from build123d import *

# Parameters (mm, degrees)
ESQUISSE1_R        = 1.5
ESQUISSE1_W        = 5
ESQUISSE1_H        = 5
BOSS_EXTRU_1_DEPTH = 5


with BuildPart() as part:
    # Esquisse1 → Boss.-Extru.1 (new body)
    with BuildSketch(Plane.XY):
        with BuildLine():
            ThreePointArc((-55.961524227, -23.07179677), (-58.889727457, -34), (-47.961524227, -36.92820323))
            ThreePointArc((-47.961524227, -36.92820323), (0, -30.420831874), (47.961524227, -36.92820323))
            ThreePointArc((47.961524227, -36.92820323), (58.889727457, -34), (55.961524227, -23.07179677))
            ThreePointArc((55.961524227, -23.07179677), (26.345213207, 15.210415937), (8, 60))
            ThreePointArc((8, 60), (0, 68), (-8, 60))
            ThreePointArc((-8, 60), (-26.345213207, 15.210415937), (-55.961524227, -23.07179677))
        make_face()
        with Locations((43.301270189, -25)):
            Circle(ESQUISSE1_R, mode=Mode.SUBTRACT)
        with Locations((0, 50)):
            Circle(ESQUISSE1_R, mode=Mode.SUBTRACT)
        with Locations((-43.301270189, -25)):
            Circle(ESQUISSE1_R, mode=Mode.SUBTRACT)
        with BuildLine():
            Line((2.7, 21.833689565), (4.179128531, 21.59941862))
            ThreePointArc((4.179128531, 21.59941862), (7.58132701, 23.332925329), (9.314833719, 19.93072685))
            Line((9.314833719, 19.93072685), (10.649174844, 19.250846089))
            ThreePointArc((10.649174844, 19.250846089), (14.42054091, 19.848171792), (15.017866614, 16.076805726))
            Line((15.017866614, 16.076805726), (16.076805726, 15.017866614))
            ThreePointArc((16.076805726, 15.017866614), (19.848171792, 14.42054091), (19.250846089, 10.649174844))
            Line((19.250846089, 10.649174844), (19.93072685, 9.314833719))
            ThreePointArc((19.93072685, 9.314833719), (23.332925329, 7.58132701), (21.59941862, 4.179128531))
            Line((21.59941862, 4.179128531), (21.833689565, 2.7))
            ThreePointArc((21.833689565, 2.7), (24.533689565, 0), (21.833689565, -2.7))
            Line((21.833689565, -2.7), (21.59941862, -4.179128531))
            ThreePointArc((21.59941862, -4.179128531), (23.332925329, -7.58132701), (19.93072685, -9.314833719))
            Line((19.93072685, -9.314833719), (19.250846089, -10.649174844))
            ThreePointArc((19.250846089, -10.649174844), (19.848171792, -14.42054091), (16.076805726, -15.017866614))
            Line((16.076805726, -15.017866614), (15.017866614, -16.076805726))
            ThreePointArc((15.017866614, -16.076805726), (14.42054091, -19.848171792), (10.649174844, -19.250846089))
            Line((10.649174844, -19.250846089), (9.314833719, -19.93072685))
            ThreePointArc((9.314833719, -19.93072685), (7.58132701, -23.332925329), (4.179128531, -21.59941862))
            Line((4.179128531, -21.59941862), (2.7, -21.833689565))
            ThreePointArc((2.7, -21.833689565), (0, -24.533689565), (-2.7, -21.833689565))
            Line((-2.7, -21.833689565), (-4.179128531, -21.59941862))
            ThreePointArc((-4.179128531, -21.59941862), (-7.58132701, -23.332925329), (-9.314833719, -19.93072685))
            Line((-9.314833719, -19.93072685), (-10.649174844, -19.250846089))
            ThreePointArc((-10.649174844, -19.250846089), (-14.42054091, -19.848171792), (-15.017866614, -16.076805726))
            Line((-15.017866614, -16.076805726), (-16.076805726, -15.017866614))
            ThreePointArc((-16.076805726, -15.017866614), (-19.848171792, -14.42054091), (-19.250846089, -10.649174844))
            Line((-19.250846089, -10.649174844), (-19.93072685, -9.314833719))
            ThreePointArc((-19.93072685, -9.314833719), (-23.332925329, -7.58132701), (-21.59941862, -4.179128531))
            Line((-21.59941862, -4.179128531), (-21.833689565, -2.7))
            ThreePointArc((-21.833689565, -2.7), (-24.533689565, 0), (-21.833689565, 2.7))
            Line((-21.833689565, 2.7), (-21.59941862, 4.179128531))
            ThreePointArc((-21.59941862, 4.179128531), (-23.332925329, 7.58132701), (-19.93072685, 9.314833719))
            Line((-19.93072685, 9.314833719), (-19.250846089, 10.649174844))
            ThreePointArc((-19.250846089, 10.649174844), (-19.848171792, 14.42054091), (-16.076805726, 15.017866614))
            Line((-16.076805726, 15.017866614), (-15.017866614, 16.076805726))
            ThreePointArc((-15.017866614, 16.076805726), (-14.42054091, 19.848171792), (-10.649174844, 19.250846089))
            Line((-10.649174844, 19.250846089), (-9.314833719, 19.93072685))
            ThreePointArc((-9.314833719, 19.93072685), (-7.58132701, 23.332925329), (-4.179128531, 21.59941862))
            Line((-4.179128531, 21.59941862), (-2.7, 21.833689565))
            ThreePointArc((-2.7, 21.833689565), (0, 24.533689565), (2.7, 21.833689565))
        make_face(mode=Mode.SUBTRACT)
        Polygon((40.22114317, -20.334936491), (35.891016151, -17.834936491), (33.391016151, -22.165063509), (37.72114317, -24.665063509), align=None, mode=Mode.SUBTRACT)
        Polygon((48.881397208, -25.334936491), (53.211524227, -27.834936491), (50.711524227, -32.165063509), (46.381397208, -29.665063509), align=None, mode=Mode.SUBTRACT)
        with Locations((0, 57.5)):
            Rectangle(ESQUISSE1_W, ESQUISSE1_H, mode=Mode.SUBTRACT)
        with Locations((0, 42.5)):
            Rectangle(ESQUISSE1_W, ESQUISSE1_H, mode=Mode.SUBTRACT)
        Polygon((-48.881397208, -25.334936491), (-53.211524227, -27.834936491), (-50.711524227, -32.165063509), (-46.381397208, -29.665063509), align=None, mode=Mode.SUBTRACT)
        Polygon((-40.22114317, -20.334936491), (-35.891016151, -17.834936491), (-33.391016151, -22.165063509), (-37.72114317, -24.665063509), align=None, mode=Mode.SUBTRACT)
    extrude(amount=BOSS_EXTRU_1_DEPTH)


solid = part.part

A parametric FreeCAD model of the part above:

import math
import FreeCAD as App
import Part
import Sketcher
from FreeCAD import Vector
Q = App.Units.Quantity


def add_polygon(sketch, points):
    """Adds a closed chain of lines whose ends are joined by coincident constraints."""
    first, n = sketch.GeometryCount, len(points)
    for a, b in zip(points, points[1:] + points[:1]):
        sketch.addGeometry(Part.LineSegment(App.Vector(*a, 0), App.Vector(*b, 0)), False)
    for i in range(n):
        sketch.addConstraint(Sketcher.Constraint("Coincident", first + i, 2, first + (i + 1) % n, 1))

doc = App.newDocument("Part")
body = doc.addObject("PartDesign::Body", "Body")

# Sketch on XY plane
sketch1 = body.newObject("Sketcher::SketchObject", "Sketch")
sketch1.AttachmentSupport = (doc.getObject("XY_Plane"), [""])
sketch1.MapMode = "FlatFace"
sketch1.addGeometry(Part.ArcOfCircle(Part.Circle(Vector(-52, -30, 0), Vector(0, 0, 1), 8), math.radians(120), math.radians(300)), False)  # 0
sketch1.addGeometry(Part.ArcOfCircle(Part.Circle(Vector(0, -210.4, 0), Vector(0, 0, 1), 180), math.radians(75), math.radians(105)), False)  # 1
sketch1.addGeometry(Part.ArcOfCircle(Part.Circle(Vector(52, -30, 0), Vector(0, 0, 1), 8), math.radians(-120), math.radians(60)), False)  # 2
sketch1.addGeometry(Part.ArcOfCircle(Part.Circle(Vector(182.2, 105.2, 0), Vector(0, 0, 1), 180), math.radians(-165), math.radians(-135)), False)  # 3
sketch1.addGeometry(Part.ArcOfCircle(Part.Circle(Vector(0, 60, 0), Vector(0, 0, 1), 8), math.radians(0), math.radians(180)), False)  # 4
sketch1.addGeometry(Part.ArcOfCircle(Part.Circle(Vector(-182.2, 105.2, 0), Vector(0, 0, 1), 180), math.radians(-45), math.radians(-15)), False)  # 5
add_polygon(sketch1, [(-53.2, -27.8), (-48.9, -25.3), (-46.4, -29.7), (-50.7, -32.2)])  # lines 6-9
sketch1.addGeometry(Part.Circle(Vector(-43.3, -25, 0), Vector(0, 0, 1), 1.5), False)  # 10
add_polygon(sketch1, [(-37.7, -24.7), (-40.2, -20.3), (-35.9, -17.8), (-33.4, -22.2)])  # lines 11-14
add_polygon(sketch1, [(35.9, -17.8), (40.2, -20.3), (37.7, -24.7), (33.4, -22.2)])  # lines 15-18
add_polygon(sketch1, [(46.4, -29.7), (48.9, -25.3), (53.2, -27.8), (50.7, -32.2)])  # lines 19-22
sketch1.addGeometry(Part.Circle(Vector(43.3, -25, 0), Vector(0, 0, 1), 1.5), False)  # 23
sketch1.addGeometry(Part.ArcOfCircle(Part.Circle(Vector(0, 21.8, 0), Vector(0, 0, 1), 2.7), math.radians(0), math.radians(180)), False)  # 24
sketch1.addGeometry(Part.LineSegment(Vector(2.7, 21.8, 0), Vector(4.2, 21.6, 0)), False)  # 25
sketch1.addGeometry(Part.ArcOfCircle(Part.Circle(Vector(6.7, 20.8, 0), Vector(0, 0, 1), 2.7), math.radians(-18), math.radians(162)), False)  # 26
sketch1.addGeometry(Part.LineSegment(Vector(9.3, 19.9, 0), Vector(10.6, 19.3, 0)), False)  # 27
sketch1.addGeometry(Part.ArcOfCircle(Part.Circle(Vector(12.8, 17.7, 0), Vector(0, 0, 1), 2.7), math.radians(-36), math.radians(144)), False)  # 28
sketch1.addGeometry(Part.LineSegment(Vector(15, 16.1, 0), Vector(16.1, 15, 0)), False)  # 29
sketch1.addGeometry(Part.ArcOfCircle(Part.Circle(Vector(17.7, 12.8, 0), Vector(0, 0, 1), 2.7), math.radians(-54), math.radians(126)), False)  # 30
sketch1.addGeometry(Part.LineSegment(Vector(19.3, 10.6, 0), Vector(19.9, 9.3, 0)), False)  # 31
sketch1.addGeometry(Part.ArcOfCircle(Part.Circle(Vector(20.8, 6.7, 0), Vector(0, 0, 1), 2.7), math.radians(-72), math.radians(108)), False)  # 32
sketch1.addGeometry(Part.LineSegment(Vector(21.6, 4.2, 0), Vector(21.8, 2.7, 0)), False)  # 33
sketch1.addGeometry(Part.ArcOfCircle(Part.Circle(Vector(21.8, 0, 0), Vector(0, 0, 1), 2.7), math.radians(-90), math.radians(90)), False)  # 34
sketch1.addGeometry(Part.LineSegment(Vector(21.8, -2.7, 0), Vector(21.6, -4.2, 0)), False)  # 35
sketch1.addGeometry(Part.ArcOfCircle(Part.Circle(Vector(20.8, -6.7, 0), Vector(0, 0, 1), 2.7), math.radians(-108), math.radians(72)), False)  # 36
sketch1.addGeometry(Part.LineSegment(Vector(19.9, -9.3, 0), Vector(19.3, -10.6, 0)), False)  # 37
sketch1.addGeometry(Part.ArcOfCircle(Part.Circle(Vector(17.7, -12.8, 0), Vector(0, 0, 1), 2.7), math.radians(-126), math.radians(54)), False)  # 38
sketch1.addGeometry(Part.LineSegment(Vector(16.1, -15, 0), Vector(15, -16.1, 0)), False)  # 39
sketch1.addGeometry(Part.ArcOfCircle(Part.Circle(Vector(12.8, -17.7, 0), Vector(0, 0, 1), 2.7), math.radians(-144), math.radians(36)), False)  # 40
sketch1.addGeometry(Part.LineSegment(Vector(10.6, -19.3, 0), Vector(9.3, -19.9, 0)), False)  # 41
sketch1.addGeometry(Part.ArcOfCircle(Part.Circle(Vector(6.7, -20.8, 0), Vector(0, 0, 1), 2.7), math.radians(-162), math.radians(18)), False)  # 42
sketch1.addGeometry(Part.LineSegment(Vector(4.2, -21.6, 0), Vector(2.7, -21.8, 0)), False)  # 43
sketch1.addGeometry(Part.ArcOfCircle(Part.Circle(Vector(0, -21.8, 0), Vector(0, 0, 1), 2.7), math.radians(180), math.radians(360)), False)  # 44
sketch1.addGeometry(Part.LineSegment(Vector(-2.7, -21.8, 0), Vector(-4.2, -21.6, 0)), False)  # 45
sketch1.addGeometry(Part.ArcOfCircle(Part.Circle(Vector(-6.7, -20.8, 0), Vector(0, 0, 1), 2.7), math.radians(162), math.radians(342)), False)  # 46
sketch1.addGeometry(Part.LineSegment(Vector(-9.3, -19.9, 0), Vector(-10.6, -19.3, 0)), False)  # 47
sketch1.addGeometry(Part.ArcOfCircle(Part.Circle(Vector(-12.8, -17.7, 0), Vector(0, 0, 1), 2.7), math.radians(144), math.radians(324)), False)  # 48
sketch1.addGeometry(Part.LineSegment(Vector(-15, -16.1, 0), Vector(-16.1, -15, 0)), False)  # 49
sketch1.addGeometry(Part.ArcOfCircle(Part.Circle(Vector(-17.7, -12.8, 0), Vector(0, 0, 1), 2.7), math.radians(126), math.radians(306)), False)  # 50
sketch1.addGeometry(Part.LineSegment(Vector(-19.3, -10.6, 0), Vector(-19.9, -9.3, 0)), False)  # 51
sketch1.addGeometry(Part.ArcOfCircle(Part.Circle(Vector(-20.8, -6.7, 0), Vector(0, 0, 1), 2.7), math.radians(108), math.radians(288)), False)  # 52
sketch1.addGeometry(Part.LineSegment(Vector(-21.6, -4.2, 0), Vector(-21.8, -2.7, 0)), False)  # 53
sketch1.addGeometry(Part.ArcOfCircle(Part.Circle(Vector(-21.8, 0, 0), Vector(0, 0, 1), 2.7), math.radians(90), math.radians(270)), False)  # 54
sketch1.addGeometry(Part.LineSegment(Vector(-21.8, 2.7, 0), Vector(-21.6, 4.2, 0)), False)  # 55
sketch1.addGeometry(Part.ArcOfCircle(Part.Circle(Vector(-20.8, 6.7, 0), Vector(0, 0, 1), 2.7), math.radians(72), math.radians(252)), False)  # 56
sketch1.addGeometry(Part.LineSegment(Vector(-19.9, 9.3, 0), Vector(-19.3, 10.6, 0)), False)  # 57
sketch1.addGeometry(Part.ArcOfCircle(Part.Circle(Vector(-17.7, 12.8, 0), Vector(0, 0, 1), 2.7), math.radians(54), math.radians(234)), False)  # 58
sketch1.addGeometry(Part.LineSegment(Vector(-16.1, 15, 0), Vector(-15, 16.1, 0)), False)  # 59
sketch1.addGeometry(Part.ArcOfCircle(Part.Circle(Vector(-12.8, 17.7, 0), Vector(0, 0, 1), 2.7), math.radians(36), math.radians(216)), False)  # 60
sketch1.addGeometry(Part.LineSegment(Vector(-10.6, 19.3, 0), Vector(-9.3, 19.9, 0)), False)  # 61
sketch1.addGeometry(Part.ArcOfCircle(Part.Circle(Vector(-6.7, 20.8, 0), Vector(0, 0, 1), 2.7), math.radians(18), math.radians(198)), False)  # 62
sketch1.addGeometry(Part.LineSegment(Vector(-4.2, 21.6, 0), Vector(-2.7, 21.8, 0)), False)  # 63
add_polygon(sketch1, [(2.5, 40), (-2.5, 40), (-2.5, 45), (2.5, 45)])  # lines 64-67
sketch1.addGeometry(Part.Circle(Vector(0, 50, 0), Vector(0, 0, 1), 1.5), False)  # 68
add_polygon(sketch1, [(2.5, 55), (-2.5, 55), (-2.5, 60), (2.5, 60)])  # lines 69-72
sketch1.addConstraint(Sketcher.Constraint("Coincident", 0, 2, 1, 2))
sketch1.addConstraint(Sketcher.Constraint("Coincident", 1, 1, 2, 1))
sketch1.addConstraint(Sketcher.Constraint("Coincident", 2, 2, 3, 2))
sketch1.addConstraint(Sketcher.Constraint("Coincident", 3, 1, 4, 1))
sketch1.addConstraint(Sketcher.Constraint("Coincident", 4, 2, 5, 2))
sketch1.addConstraint(Sketcher.Constraint("Coincident", 5, 1, 0, 1))
sketch1.addConstraint(Sketcher.Constraint("Coincident", 24, 1, 25, 1))
sketch1.addConstraint(Sketcher.Constraint("Coincident", 25, 2, 26, 2))
sketch1.addConstraint(Sketcher.Constraint("Coincident", 26, 1, 27, 1))
sketch1.addConstraint(Sketcher.Constraint("Coincident", 27, 2, 28, 2))
sketch1.addConstraint(Sketcher.Constraint("Coincident", 28, 1, 29, 1))
sketch1.addConstraint(Sketcher.Constraint("Coincident", 29, 2, 30, 2))
sketch1.addConstraint(Sketcher.Constraint("Coincident", 30, 1, 31, 1))
sketch1.addConstraint(Sketcher.Constraint("Coincident", 31, 2, 32, 2))
sketch1.addConstraint(Sketcher.Constraint("Coincident", 32, 1, 33, 1))
sketch1.addConstraint(Sketcher.Constraint("Coincident", 33, 2, 34, 2))
sketch1.addConstraint(Sketcher.Constraint("Coincident", 34, 1, 35, 1))
sketch1.addConstraint(Sketcher.Constraint("Coincident", 35, 2, 36, 2))
sketch1.addConstraint(Sketcher.Constraint("Coincident", 36, 1, 37, 1))
sketch1.addConstraint(Sketcher.Constraint("Coincident", 37, 2, 38, 2))
sketch1.addConstraint(Sketcher.Constraint("Coincident", 38, 1, 39, 1))
sketch1.addConstraint(Sketcher.Constraint("Coincident", 39, 2, 40, 2))
sketch1.addConstraint(Sketcher.Constraint("Coincident", 40, 1, 41, 1))
sketch1.addConstraint(Sketcher.Constraint("Coincident", 41, 2, 42, 2))
sketch1.addConstraint(Sketcher.Constraint("Coincident", 42, 1, 43, 1))
sketch1.addConstraint(Sketcher.Constraint("Coincident", 43, 2, 44, 2))
sketch1.addConstraint(Sketcher.Constraint("Coincident", 44, 1, 45, 1))
sketch1.addConstraint(Sketcher.Constraint("Coincident", 45, 2, 46, 2))
sketch1.addConstraint(Sketcher.Constraint("Coincident", 46, 1, 47, 1))
sketch1.addConstraint(Sketcher.Constraint("Coincident", 47, 2, 48, 2))
sketch1.addConstraint(Sketcher.Constraint("Coincident", 48, 1, 49, 1))
sketch1.addConstraint(Sketcher.Constraint("Coincident", 49, 2, 50, 2))
sketch1.addConstraint(Sketcher.Constraint("Coincident", 50, 1, 51, 1))
sketch1.addConstraint(Sketcher.Constraint("Coincident", 51, 2, 52, 2))
sketch1.addConstraint(Sketcher.Constraint("Coincident", 52, 1, 53, 1))
sketch1.addConstraint(Sketcher.Constraint("Coincident", 53, 2, 54, 2))
sketch1.addConstraint(Sketcher.Constraint("Coincident", 54, 1, 55, 1))
sketch1.addConstraint(Sketcher.Constraint("Coincident", 55, 2, 56, 2))
sketch1.addConstraint(Sketcher.Constraint("Coincident", 56, 1, 57, 1))
sketch1.addConstraint(Sketcher.Constraint("Coincident", 57, 2, 58, 2))
sketch1.addConstraint(Sketcher.Constraint("Coincident", 58, 1, 59, 1))
sketch1.addConstraint(Sketcher.Constraint("Coincident", 59, 2, 60, 2))
sketch1.addConstraint(Sketcher.Constraint("Coincident", 60, 1, 61, 1))
sketch1.addConstraint(Sketcher.Constraint("Coincident", 61, 2, 62, 2))
sketch1.addConstraint(Sketcher.Constraint("Coincident", 62, 1, 63, 1))
sketch1.addConstraint(Sketcher.Constraint("Coincident", 63, 2, 24, 2))
sketch1.addConstraint(Sketcher.Constraint("Horizontal", 64))
sketch1.addConstraint(Sketcher.Constraint("Vertical", 65))
sketch1.addConstraint(Sketcher.Constraint("Horizontal", 66))
sketch1.addConstraint(Sketcher.Constraint("Vertical", 67))
sketch1.addConstraint(Sketcher.Constraint("Horizontal", 69))
sketch1.addConstraint(Sketcher.Constraint("Vertical", 70))
sketch1.addConstraint(Sketcher.Constraint("Horizontal", 71))
sketch1.addConstraint(Sketcher.Constraint("Vertical", 72))
sketch1.addConstraint(Sketcher.Constraint("Equal", 0, 2))
sketch1.addConstraint(Sketcher.Constraint("Equal", 1, 3))
sketch1.addConstraint(Sketcher.Constraint("Equal", 2, 4))
sketch1.addConstraint(Sketcher.Constraint("Equal", 3, 5))
sketch1.addConstraint(Sketcher.Constraint("Equal", 10, 23))
sketch1.addConstraint(Sketcher.Constraint("Equal", 24, 26))
sketch1.addConstraint(Sketcher.Constraint("Equal", 26, 28))
sketch1.addConstraint(Sketcher.Constraint("Equal", 28, 30))
sketch1.addConstraint(Sketcher.Constraint("Equal", 30, 32))
sketch1.addConstraint(Sketcher.Constraint("Equal", 32, 34))
sketch1.addConstraint(Sketcher.Constraint("Equal", 34, 36))
sketch1.addConstraint(Sketcher.Constraint("Equal", 36, 38))
sketch1.addConstraint(Sketcher.Constraint("Equal", 38, 40))
sketch1.addConstraint(Sketcher.Constraint("Equal", 40, 42))
sketch1.addConstraint(Sketcher.Constraint("Equal", 42, 44))
sketch1.addConstraint(Sketcher.Constraint("Equal", 44, 46))
sketch1.addConstraint(Sketcher.Constraint("Equal", 46, 48))
sketch1.addConstraint(Sketcher.Constraint("Equal", 48, 50))
sketch1.addConstraint(Sketcher.Constraint("Equal", 50, 52))
sketch1.addConstraint(Sketcher.Constraint("Equal", 52, 54))
sketch1.addConstraint(Sketcher.Constraint("Equal", 54, 56))
sketch1.addConstraint(Sketcher.Constraint("Equal", 56, 58))
sketch1.addConstraint(Sketcher.Constraint("Equal", 58, 60))
sketch1.addConstraint(Sketcher.Constraint("Equal", 60, 62))
sketch1.addConstraint(Sketcher.Constraint("Equal", 23, 68))
sketch1.addConstraint(Sketcher.Constraint("Symmetric", 24, 3, 44, 3, -1, 1))
sketch1.addConstraint(Sketcher.Constraint("Symmetric", 26, 3, 46, 3, -1, 1))
sketch1.addConstraint(Sketcher.Constraint("Symmetric", 28, 3, 48, 3, -1, 1))
sketch1.addConstraint(Sketcher.Constraint("Symmetric", 30, 3, 50, 3, -1, 1))
sketch1.addConstraint(Sketcher.Constraint("Symmetric", 32, 3, 52, 3, -1, 1))
sketch1.addConstraint(Sketcher.Constraint("Symmetric", 34, 3, 54, 3, -1, 1))
sketch1.addConstraint(Sketcher.Constraint("Symmetric", 36, 3, 56, 3, -1, 1))
sketch1.addConstraint(Sketcher.Constraint("Symmetric", 38, 3, 58, 3, -1, 1))
sketch1.addConstraint(Sketcher.Constraint("Symmetric", 40, 3, 60, 3, -1, 1))
sketch1.addConstraint(Sketcher.Constraint("Symmetric", 42, 3, 62, 3, -1, 1))
sketch1.addConstraint(Sketcher.Constraint("Symmetric", 0, 3, 2, 3, -2))
sketch1.addConstraint(Sketcher.Constraint("Symmetric", 3, 3, 5, 3, -2))
sketch1.addConstraint(Sketcher.Constraint("Symmetric", 10, 3, 23, 3, -2))
sketch1.addConstraint(Sketcher.Constraint("Symmetric", 42, 3, 46, 3, -2))
sketch1.addConstraint(Sketcher.Constraint("Symmetric", 40, 3, 48, 3, -2))
sketch1.addConstraint(Sketcher.Constraint("Symmetric", 38, 3, 50, 3, -2))
sketch1.addConstraint(Sketcher.Constraint("Symmetric", 36, 3, 52, 3, -2))
sketch1.addConstraint(Sketcher.Constraint("Symmetric", 11, 2, 15, 2, -2))
sketch1.addConstraint(Sketcher.Constraint("Symmetric", 14, 2, 16, 2, -2))
sketch1.addConstraint(Sketcher.Constraint("Symmetric", 13, 2, 17, 2, -2))
sketch1.addConstraint(Sketcher.Constraint("Symmetric", 12, 2, 18, 2, -2))
sketch1.addConstraint(Sketcher.Constraint("Symmetric", 6, 2, 19, 2, -2))
sketch1.addConstraint(Sketcher.Constraint("Symmetric", 9, 2, 20, 2, -2))
sketch1.addConstraint(Sketcher.Constraint("Symmetric", 8, 2, 21, 2, -2))
sketch1.addConstraint(Sketcher.Constraint("Symmetric", 7, 2, 22, 2, -2))
sketch1.addConstraint(Sketcher.Constraint("Symmetric", 43, 2, 44, 1, -2))
sketch1.addConstraint(Sketcher.Constraint("Symmetric", 34, 1, 53, 2, -2))
sketch1.addConstraint(Sketcher.Constraint("PointOnObject", 1, 3, -2))
sketch1.addConstraint(Sketcher.Constraint("PointOnObject", 4, 3, -2))
sketch1.addConstraint(Sketcher.Constraint("PointOnObject", 68, 3, -2))
sketch1.addConstraint(Sketcher.Constraint("Perpendicular", 6, 7))
sketch1.addConstraint(Sketcher.Constraint("Perpendicular", 7, 8))
sketch1.addConstraint(Sketcher.Constraint("Perpendicular", 8, 9))
sketch1.addConstraint(Sketcher.Constraint("Parallel", 9, 11))
sketch1.addConstraint(Sketcher.Constraint("Perpendicular", 11, 12))
sketch1.addConstraint(Sketcher.Constraint("Perpendicular", 12, 13))
sketch1.addConstraint(Sketcher.Constraint("Perpendicular", 13, 14))
sketch1.addConstraint(Sketcher.Constraint("Perpendicular", 25, 35))
sketch1.addConstraint(Sketcher.Constraint("Perpendicular", 27, 37))
sketch1.addConstraint(Sketcher.Constraint("Perpendicular", 29, 39))
sketch1.addConstraint(Sketcher.Constraint("Perpendicular", 31, 41))
sketch1.addConstraint(Sketcher.Constraint("Perpendicular", 33, 43))
sketch1.addConstraint(Sketcher.Constraint("Perpendicular", 35, 45))
sketch1.addConstraint(Sketcher.Constraint("Perpendicular", 37, 47))
sketch1.addConstraint(Sketcher.Constraint("Perpendicular", 39, 49))
sketch1.addConstraint(Sketcher.Constraint("Perpendicular", 41, 51))
sketch1.addConstraint(Sketcher.Constraint("Perpendicular", 43, 53))
sketch1.addConstraint(Sketcher.Constraint("Perpendicular", 45, 55))
sketch1.addConstraint(Sketcher.Constraint("Perpendicular", 47, 57))
sketch1.addConstraint(Sketcher.Constraint("Perpendicular", 49, 59))
sketch1.addConstraint(Sketcher.Constraint("Perpendicular", 51, 61))
sketch1.addConstraint(Sketcher.Constraint("Perpendicular", 53, 63))
sketch1.addConstraint(Sketcher.Constraint("Horizontal", 4, 3, 3, 1))
sketch1.addConstraint(Sketcher.Constraint("Horizontal", 44, 3, 43, 2))
sketch1.addConstraint(Sketcher.Constraint("Horizontal", 42, 1, 45, 2))
sketch1.addConstraint(Sketcher.Constraint("Horizontal", 41, 2, 46, 1))
sketch1.addConstraint(Sketcher.Constraint("Horizontal", 40, 1, 47, 2))
sketch1.addConstraint(Sketcher.Constraint("Horizontal", 39, 2, 48, 1))
sketch1.addConstraint(Sketcher.Constraint("Horizontal", 38, 1, 49, 2))
sketch1.addConstraint(Sketcher.Constraint("Horizontal", 37, 2, 50, 1))
sketch1.addConstraint(Sketcher.Constraint("Horizontal", 32, 1, 55, 2))
sketch1.addConstraint(Sketcher.Constraint("Horizontal", 31, 2, 56, 1))
sketch1.addConstraint(Sketcher.Constraint("Horizontal", 29, 2, 58, 1))
sketch1.addConstraint(Sketcher.Constraint("Horizontal", 27, 2, 60, 1))
sketch1.addConstraint(Sketcher.Constraint("Horizontal", 25, 2, 62, 1))
sketch1.addConstraint(Sketcher.Constraint("Horizontal", 4, 2, 70, 2))
sketch1.addConstraint(Sketcher.Constraint("Vertical", 34, 3, 33, 2))
sketch1.addConstraint(Sketcher.Constraint("Vertical", 33, 2, 34, 1))
sketch1.addConstraint(Sketcher.Constraint("Vertical", 31, 2, 36, 1))
sketch1.addConstraint(Sketcher.Constraint("Vertical", 29, 2, 38, 1))
sketch1.addConstraint(Sketcher.Constraint("Vertical", 27, 2, 40, 1))
sketch1.addConstraint(Sketcher.Constraint("Vertical", 25, 2, 42, 1))
sketch1.addConstraint(Sketcher.Constraint("Vertical", 65, 2, 69, 2))
sketch1.addConstraint(Sketcher.Constraint("Vertical", 67, 2, 71, 2))
sketch1.addConstraint(Sketcher.Constraint("Equal", 71, 65))
sketch1.addConstraint(Sketcher.Constraint("Equal", 67, 70))
sketch1.addConstraint(Sketcher.Constraint("Equal", 6, 7))
sketch1.addConstraint(Sketcher.Constraint("Equal", 9, 11))
sketch1.addConstraint(Sketcher.Constraint("Equal", 11, 12))
sketch1.addConstraint(Sketcher.Constraint("Equal", 25, 27))
sketch1.addConstraint(Sketcher.Constraint("Equal", 27, 29))
sketch1.addConstraint(Sketcher.Constraint("Equal", 29, 31))
sketch1.addConstraint(Sketcher.Constraint("Equal", 31, 33))
sketch1.addConstraint(Sketcher.Constraint("Diameter", 10, Q("3 mm")))
sketch1.addConstraint(Sketcher.Constraint("Radius", 0, Q("8 mm")))
sketch1.addConstraint(Sketcher.Constraint("Radius", 1, Q("180 mm")))
sketch1.addConstraint(Sketcher.Constraint("Radius", 24, Q("2.7 mm")))
sketch1.addConstraint(Sketcher.Constraint("DistanceX", 64, 2, 64, 1, Q("5 mm")))
sketch1.addConstraint(Sketcher.Constraint("Angle", 6, Q("30 deg")))
sketch1.addConstraint(Sketcher.Constraint("Angle", 25, Q("-9 deg")))
sketch1.addConstraint(Sketcher.Constraint("Angle", 27, Q("-27 deg")))
sketch1.addConstraint(Sketcher.Constraint("Distance", 6, Q("5 mm")))
sketch1.addConstraint(Sketcher.Constraint("DistanceY", 0, 3, -1, 1, Q("30 mm")))
sketch1.addConstraint(Sketcher.Constraint("DistanceY", -1, 1, 4, 3, Q("60 mm")))
sketch1.addConstraint(Sketcher.Constraint("DistanceY", 10, 3, -1, 1, Q("25 mm")))
sketch1.addConstraint(Sketcher.Constraint("DistanceY", -1, 1, 68, 3, Q("50 mm")))
sketch1.addConstraint(Sketcher.Constraint("DistanceY", -1, 1, 64, 2, Q("40 mm")))
sketch1.addConstraint(Sketcher.Constraint("DistanceX", 64, 2, -1, 1, Q("2.5 mm")))
sketch1.addConstraint(Sketcher.Constraint("DistanceY", 1, 3, -1, 1, Q("210.420832 mm")))
sketch1.addConstraint(Sketcher.Constraint("DistanceX", 10, 3, -1, 1, Q("43.30127 mm")))
sketch1.addConstraint(Sketcher.Constraint("DistanceY", -1, 1, 24, 3, Q("21.83369 mm")))
sketch1.addConstraint(Sketcher.Constraint("DistanceX", -1, 1, 26, 3, Q("6.746981 mm")))
sketch1.addConstraint(Sketcher.Constraint("DistanceX", -1, 1, 28, 3, Q("12.833521 mm")))
sketch1.addConstraint(Sketcher.Constraint("DistanceY", -1, 1, 30, 3, Q("12.833521 mm")))
sketch1.addConstraint(Sketcher.Constraint("DistanceY", -1, 1, 32, 3, Q("6.746981 mm")))
sketch1.addConstraint(Sketcher.Constraint("DistanceX", -1, 1, 34, 3, Q("21.83369 mm")))
sketch1.addConstraint(Sketcher.Constraint("DistanceX", -1, 1, 25, 2, Q("4.179129 mm")))
sketch1.addConstraint(Sketcher.Constraint("DistanceX", 0, 3, -1, 1, Q("51.961524 mm")))
sketch1.addConstraint(Sketcher.Constraint("DistanceX", -1, 1, 3, 3, Q("182.229786 mm")))
sketch1.addConstraint(Sketcher.Constraint("DistanceY", -1, 1, 28, 3, Q("17.663826 mm")))
sketch1.addConstraint(Sketcher.Constraint("DistanceX", -1, 1, 30, 3, Q("17.663826 mm")))
sketch1.addConstraint(Sketcher.Constraint("DistanceX", 6, 2, -1, 1, Q("48.881397 mm")))
sketch1.addConstraint(Sketcher.Constraint("DistanceY", 6, 2, -1, 1, Q("25.334936 mm")))
sketch1.addConstraint(Sketcher.Constraint("DistanceX", 11, 2, -1, 1, Q("40.221143 mm")))
sketch1.addConstraint(Sketcher.Constraint("DistanceY", 11, 2, -1, 1, Q("20.334936 mm")))
pad1 = body.newObject("PartDesign::Pad", "Pad")
pad1.Profile = sketch1
pad1.Length = 5

doc.recompute()
